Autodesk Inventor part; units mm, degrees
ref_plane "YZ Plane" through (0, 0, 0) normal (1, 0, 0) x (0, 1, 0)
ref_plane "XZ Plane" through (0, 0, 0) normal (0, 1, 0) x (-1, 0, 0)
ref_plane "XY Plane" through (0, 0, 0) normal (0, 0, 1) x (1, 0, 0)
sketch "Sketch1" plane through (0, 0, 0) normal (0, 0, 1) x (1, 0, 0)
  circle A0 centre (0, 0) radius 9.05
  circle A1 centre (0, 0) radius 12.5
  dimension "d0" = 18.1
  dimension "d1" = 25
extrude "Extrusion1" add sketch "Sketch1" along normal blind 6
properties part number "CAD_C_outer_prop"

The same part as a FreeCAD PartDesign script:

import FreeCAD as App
import Part
import Sketcher
Q = App.Units.Quantity

doc = App.newDocument("Part")
params = doc.addObject("Spreadsheet::Sheet", "Params")
for row, (alias, value) in enumerate([
    ("sketch1_diameter", "25 mm"),
    ("sketch1_diameter2", "18.1 mm"),
    ("pad1_length", "6 mm"),
], start=1):
    params.set(f"A{row}", alias)
    params.set(f"B{row}", "=" + value)
    params.setAlias(f"B{row}", alias)

body = doc.addObject("PartDesign::Body", "Body")

# Sketch on XY plane
sketch1 = body.newObject("Sketcher::SketchObject", "Sketch")
sketch1.AttachmentSupport = (doc.getObject("XY_Plane"), [""])
sketch1.MapMode = "FlatFace"
sketch1.addGeometry(Part.Circle(App.Vector(0, 0, 0), App.Vector(0, 0, 1), 12.5), False)
sketch1.addGeometry(Part.Circle(App.Vector(0, 0, 0), App.Vector(0, 0, 1), 9.05), False)
sketch1.addConstraint(Sketcher.Constraint("Coincident", 0, 3, -1, 1))
sketch1.addConstraint(Sketcher.Constraint("Coincident", 1, 3, -1, 1))
sketch1.addConstraint(Sketcher.Constraint("Diameter", 0, Q("25 mm")))
sketch1.addConstraint(Sketcher.Constraint("Diameter", 1, Q("18.1 mm")))
sketch1.setExpression("Constraints[2]", "Params.sketch1_diameter")
sketch1.setExpression("Constraints[3]", "Params.sketch1_diameter2")
pad1 = body.newObject("PartDesign::Pad", "Pad")
pad1.Profile = sketch1
pad1.setExpression("Length", "Params.pad1_length")

doc.recompute()
